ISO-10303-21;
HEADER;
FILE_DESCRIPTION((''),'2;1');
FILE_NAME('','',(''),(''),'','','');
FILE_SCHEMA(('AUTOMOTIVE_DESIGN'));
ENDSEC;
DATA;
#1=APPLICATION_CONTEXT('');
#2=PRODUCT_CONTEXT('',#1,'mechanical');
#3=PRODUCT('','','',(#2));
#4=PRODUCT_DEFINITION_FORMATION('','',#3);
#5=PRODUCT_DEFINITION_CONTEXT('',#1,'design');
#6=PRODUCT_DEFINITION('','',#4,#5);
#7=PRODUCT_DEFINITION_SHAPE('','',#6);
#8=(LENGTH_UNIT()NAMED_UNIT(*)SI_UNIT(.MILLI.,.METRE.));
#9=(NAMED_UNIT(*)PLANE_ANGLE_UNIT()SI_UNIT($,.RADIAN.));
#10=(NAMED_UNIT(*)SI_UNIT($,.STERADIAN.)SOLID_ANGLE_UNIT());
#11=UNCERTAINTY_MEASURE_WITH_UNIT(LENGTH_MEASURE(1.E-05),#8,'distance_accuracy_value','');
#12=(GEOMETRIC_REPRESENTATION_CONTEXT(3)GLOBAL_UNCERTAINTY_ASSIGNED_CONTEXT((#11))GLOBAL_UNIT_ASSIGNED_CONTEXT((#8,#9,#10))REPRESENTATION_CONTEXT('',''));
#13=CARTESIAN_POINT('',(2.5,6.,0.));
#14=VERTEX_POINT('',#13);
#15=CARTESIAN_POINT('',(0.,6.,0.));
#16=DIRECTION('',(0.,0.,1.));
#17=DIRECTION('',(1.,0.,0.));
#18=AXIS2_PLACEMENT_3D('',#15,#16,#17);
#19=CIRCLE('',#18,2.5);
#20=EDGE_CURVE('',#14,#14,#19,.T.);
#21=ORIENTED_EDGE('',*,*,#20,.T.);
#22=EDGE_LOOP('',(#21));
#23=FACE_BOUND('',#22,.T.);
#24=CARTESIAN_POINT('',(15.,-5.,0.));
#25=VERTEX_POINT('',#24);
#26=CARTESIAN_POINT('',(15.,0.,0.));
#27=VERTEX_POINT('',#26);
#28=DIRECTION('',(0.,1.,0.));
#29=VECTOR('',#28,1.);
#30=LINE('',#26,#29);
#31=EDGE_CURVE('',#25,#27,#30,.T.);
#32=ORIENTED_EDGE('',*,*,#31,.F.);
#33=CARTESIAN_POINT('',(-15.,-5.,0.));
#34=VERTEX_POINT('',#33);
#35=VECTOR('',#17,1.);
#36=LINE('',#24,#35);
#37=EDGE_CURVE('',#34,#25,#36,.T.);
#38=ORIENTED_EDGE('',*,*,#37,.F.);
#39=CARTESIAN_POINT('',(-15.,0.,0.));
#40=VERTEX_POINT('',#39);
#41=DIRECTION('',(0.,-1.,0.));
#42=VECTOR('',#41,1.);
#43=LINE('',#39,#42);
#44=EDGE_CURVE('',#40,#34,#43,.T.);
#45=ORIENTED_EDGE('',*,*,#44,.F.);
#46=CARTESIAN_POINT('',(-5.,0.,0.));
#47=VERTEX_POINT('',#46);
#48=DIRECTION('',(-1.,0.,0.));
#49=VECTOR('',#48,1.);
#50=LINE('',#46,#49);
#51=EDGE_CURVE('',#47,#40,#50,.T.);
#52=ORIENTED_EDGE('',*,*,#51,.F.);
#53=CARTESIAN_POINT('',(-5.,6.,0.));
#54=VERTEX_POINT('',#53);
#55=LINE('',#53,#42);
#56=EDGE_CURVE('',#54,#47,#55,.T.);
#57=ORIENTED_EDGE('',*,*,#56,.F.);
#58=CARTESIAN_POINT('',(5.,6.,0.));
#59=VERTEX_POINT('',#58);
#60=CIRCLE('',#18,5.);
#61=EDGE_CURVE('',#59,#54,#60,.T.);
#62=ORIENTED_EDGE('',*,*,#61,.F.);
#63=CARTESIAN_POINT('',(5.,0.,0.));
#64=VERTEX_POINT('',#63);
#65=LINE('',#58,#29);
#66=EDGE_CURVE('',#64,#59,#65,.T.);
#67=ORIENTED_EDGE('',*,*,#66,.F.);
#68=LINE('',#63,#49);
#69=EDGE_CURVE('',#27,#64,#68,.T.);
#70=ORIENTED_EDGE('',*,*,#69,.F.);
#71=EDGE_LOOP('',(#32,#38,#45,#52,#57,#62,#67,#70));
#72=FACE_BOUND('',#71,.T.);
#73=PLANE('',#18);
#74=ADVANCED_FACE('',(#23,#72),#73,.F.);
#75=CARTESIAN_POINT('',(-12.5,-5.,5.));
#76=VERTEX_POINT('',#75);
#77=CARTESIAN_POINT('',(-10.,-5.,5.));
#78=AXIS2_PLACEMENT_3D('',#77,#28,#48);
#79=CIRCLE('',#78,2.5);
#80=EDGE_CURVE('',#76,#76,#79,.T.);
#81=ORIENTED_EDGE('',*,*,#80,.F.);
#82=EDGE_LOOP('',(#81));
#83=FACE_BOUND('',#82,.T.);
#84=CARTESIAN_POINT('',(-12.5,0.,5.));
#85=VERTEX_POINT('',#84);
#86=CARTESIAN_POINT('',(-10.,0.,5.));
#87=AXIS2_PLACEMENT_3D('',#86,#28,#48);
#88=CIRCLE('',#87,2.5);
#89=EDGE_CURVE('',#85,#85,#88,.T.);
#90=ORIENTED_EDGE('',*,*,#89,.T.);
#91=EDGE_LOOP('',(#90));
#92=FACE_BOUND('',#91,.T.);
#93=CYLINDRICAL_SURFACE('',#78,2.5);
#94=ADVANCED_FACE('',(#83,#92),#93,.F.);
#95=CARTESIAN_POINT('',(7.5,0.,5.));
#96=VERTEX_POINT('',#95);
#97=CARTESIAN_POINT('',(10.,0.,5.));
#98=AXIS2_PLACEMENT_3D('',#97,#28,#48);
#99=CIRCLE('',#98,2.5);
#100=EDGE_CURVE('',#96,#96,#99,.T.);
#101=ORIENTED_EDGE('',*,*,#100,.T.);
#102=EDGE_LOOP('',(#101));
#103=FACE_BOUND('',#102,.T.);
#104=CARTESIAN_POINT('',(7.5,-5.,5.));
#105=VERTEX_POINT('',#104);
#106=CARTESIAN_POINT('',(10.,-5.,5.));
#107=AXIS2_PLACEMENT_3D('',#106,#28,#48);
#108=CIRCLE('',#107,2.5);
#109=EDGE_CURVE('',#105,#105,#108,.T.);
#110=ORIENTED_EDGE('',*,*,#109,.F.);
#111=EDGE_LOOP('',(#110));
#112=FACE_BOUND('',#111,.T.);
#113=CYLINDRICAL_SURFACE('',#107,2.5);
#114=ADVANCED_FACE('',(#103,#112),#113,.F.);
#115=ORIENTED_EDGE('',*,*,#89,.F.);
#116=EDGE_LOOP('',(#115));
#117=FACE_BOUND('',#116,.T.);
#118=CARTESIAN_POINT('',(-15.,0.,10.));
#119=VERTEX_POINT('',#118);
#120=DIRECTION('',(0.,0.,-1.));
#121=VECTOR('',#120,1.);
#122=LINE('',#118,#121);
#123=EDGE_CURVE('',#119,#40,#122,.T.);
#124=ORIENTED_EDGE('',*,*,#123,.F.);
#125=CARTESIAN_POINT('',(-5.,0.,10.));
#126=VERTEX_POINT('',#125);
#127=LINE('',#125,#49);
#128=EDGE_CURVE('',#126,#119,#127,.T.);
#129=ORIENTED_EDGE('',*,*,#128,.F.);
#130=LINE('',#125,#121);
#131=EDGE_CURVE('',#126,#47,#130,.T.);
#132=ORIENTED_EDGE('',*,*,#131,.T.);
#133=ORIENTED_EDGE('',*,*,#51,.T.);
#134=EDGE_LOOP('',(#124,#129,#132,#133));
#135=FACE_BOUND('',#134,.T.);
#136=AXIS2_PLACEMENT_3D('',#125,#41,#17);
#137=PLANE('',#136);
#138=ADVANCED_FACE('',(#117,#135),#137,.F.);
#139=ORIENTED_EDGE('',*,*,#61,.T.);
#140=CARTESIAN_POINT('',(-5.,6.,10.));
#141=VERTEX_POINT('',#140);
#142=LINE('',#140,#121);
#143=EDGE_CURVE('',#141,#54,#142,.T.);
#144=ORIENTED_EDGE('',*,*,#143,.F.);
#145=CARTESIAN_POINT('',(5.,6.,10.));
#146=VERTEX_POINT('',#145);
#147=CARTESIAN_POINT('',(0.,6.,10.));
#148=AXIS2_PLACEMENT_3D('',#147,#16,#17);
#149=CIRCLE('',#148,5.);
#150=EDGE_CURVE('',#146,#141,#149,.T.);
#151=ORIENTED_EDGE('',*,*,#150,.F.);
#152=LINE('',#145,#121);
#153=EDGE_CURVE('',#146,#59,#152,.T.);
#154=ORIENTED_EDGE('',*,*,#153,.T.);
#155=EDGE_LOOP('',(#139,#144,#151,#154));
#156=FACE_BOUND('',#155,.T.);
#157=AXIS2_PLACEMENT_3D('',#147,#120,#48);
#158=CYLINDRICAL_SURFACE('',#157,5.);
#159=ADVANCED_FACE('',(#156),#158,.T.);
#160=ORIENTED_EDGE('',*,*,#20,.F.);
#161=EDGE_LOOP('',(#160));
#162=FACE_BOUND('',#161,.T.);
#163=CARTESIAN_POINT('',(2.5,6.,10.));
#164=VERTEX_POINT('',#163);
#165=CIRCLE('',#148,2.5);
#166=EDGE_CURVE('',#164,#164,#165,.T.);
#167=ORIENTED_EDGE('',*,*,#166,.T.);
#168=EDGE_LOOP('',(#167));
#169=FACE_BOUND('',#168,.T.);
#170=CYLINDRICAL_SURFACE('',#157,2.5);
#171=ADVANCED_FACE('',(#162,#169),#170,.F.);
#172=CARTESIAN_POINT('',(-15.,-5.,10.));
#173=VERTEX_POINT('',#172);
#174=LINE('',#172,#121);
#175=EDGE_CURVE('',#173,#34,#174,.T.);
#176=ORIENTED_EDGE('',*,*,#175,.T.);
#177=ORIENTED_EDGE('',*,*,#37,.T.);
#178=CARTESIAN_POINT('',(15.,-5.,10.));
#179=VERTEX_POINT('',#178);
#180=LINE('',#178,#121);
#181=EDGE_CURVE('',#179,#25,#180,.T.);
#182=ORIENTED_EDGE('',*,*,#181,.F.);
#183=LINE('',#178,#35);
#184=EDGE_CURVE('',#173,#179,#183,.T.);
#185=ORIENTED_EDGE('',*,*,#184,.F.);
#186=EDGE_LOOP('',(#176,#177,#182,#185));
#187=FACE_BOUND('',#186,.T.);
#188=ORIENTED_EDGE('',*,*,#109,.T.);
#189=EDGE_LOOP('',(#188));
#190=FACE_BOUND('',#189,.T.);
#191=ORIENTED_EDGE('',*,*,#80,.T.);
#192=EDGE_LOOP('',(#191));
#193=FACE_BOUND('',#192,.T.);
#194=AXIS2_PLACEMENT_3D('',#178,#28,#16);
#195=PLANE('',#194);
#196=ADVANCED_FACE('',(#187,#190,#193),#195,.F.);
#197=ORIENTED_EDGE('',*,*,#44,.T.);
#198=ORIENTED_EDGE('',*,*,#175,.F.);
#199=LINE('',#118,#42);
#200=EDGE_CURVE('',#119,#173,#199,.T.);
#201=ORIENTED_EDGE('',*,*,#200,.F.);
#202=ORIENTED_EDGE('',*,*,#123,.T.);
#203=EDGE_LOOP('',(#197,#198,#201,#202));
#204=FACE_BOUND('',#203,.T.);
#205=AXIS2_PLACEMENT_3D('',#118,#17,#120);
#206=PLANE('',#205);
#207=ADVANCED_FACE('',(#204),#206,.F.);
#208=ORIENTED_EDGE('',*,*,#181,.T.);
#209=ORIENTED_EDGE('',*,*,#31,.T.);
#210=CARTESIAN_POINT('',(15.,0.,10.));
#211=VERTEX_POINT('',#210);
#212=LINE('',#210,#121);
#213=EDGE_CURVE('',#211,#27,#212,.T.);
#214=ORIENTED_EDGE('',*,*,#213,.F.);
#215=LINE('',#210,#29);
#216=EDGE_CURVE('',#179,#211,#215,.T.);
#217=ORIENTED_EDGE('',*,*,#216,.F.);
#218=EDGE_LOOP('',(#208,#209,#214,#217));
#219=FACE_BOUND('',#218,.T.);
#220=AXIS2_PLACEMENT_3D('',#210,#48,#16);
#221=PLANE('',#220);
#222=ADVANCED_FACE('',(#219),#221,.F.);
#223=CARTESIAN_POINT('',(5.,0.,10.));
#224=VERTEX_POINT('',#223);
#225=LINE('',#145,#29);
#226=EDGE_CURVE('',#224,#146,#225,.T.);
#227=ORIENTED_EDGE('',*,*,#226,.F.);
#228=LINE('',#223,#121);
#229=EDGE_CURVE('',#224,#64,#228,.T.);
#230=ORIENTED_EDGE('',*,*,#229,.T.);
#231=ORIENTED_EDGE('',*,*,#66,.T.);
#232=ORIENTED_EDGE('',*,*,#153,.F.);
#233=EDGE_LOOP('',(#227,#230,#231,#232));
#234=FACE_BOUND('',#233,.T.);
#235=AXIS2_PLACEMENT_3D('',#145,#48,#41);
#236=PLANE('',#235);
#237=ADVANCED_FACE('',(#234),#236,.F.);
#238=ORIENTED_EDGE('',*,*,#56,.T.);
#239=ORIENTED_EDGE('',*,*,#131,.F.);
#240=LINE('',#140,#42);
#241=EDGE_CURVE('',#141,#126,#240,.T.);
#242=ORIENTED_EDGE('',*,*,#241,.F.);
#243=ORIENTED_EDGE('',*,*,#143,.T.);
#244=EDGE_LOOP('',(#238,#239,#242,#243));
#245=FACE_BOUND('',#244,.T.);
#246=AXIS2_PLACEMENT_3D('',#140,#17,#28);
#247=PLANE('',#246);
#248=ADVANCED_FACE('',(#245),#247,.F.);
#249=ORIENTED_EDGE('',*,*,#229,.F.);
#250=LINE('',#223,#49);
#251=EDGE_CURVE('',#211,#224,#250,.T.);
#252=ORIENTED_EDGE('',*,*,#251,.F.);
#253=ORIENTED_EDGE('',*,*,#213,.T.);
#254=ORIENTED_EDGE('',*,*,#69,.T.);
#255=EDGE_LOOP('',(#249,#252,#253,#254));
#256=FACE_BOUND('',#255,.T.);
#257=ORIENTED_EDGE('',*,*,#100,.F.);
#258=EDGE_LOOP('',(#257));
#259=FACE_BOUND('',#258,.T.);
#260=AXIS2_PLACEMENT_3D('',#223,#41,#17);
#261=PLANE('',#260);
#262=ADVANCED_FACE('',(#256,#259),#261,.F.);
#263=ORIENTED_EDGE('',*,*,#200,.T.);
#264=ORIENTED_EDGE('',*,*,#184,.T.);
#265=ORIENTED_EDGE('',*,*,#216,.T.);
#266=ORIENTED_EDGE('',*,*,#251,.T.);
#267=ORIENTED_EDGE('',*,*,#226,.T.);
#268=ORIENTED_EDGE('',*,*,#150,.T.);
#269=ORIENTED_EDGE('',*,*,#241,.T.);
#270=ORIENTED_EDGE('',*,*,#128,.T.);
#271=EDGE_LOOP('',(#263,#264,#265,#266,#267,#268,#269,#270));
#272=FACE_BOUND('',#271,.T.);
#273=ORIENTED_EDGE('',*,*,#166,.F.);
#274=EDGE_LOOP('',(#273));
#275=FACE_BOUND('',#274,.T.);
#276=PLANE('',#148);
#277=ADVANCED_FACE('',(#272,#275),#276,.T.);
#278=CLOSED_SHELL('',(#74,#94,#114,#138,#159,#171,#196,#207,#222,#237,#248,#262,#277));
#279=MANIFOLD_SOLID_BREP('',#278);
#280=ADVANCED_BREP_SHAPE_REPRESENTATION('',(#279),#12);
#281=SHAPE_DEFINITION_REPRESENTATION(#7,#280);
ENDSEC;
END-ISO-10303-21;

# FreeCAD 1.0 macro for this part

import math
import FreeCAD as App
import Part
import Sketcher

doc = App.newDocument("Part")
body = doc.addObject("PartDesign::Body", "Body")

# Sketch on XY plane
sketch1 = body.newObject("Sketcher::SketchObject", "Sketch")
sketch1.AttachmentSupport = (doc.getObject("XY_Plane"), [""])
sketch1.MapMode = "FlatFace"
sketch1.addGeometry([
    Part.LineSegment(App.Vector(15, 0, 0), App.Vector(5, 0, 0)),  # 0
    Part.LineSegment(App.Vector(5, 0, 0), App.Vector(5, 6, 0)),  # 1
    Part.ArcOfCircle(Part.Circle(App.Vector(0, 6, 0), App.Vector(0, 0, 1), 5), math.radians(0), math.radians(180)),  # 2
    Part.LineSegment(App.Vector(-5, 6, 0), App.Vector(-5, 0, 0)),  # 3
    Part.LineSegment(App.Vector(-5, 0, 0), App.Vector(-15, 0, 0)),  # 4
    Part.LineSegment(App.Vector(-15, 0, 0), App.Vector(-15, -5, 0)),  # 5
    Part.LineSegment(App.Vector(-15, -5, 0), App.Vector(15, -5, 0)),  # 6
    Part.LineSegment(App.Vector(15, -5, 0), App.Vector(15, 0, 0)),  # 7
    Part.Circle(App.Vector(0, 6, 0), App.Vector(0, 0, 1), 2.5),  # 8
], False)
sketch1.addConstraint([
    Sketcher.Constraint("Coincident", 0, 2, 1, 1),
    Sketcher.Constraint("Tangent", 1, 2, 2, 1),
    Sketcher.Constraint("Tangent", 2, 2, 3, 1),
    Sketcher.Constraint("Coincident", 3, 2, 4, 1),
    Sketcher.Constraint("Coincident", 4, 2, 5, 1),
    Sketcher.Constraint("Coincident", 5, 2, 6, 1),
    Sketcher.Constraint("Coincident", 6, 2, 7, 1),
    Sketcher.Constraint("Coincident", 7, 2, 0, 1),
    Sketcher.Constraint("Horizontal", 0),
    Sketcher.Constraint("Vertical", 1),
    Sketcher.Constraint("Vertical", 3),
    Sketcher.Constraint("Horizontal", 4),
    Sketcher.Constraint("Vertical", 5),
    Sketcher.Constraint("Horizontal", 6),
    Sketcher.Constraint("Vertical", 7),
    Sketcher.Constraint("Coincident", 8, 3, 2, 3),
    Sketcher.Constraint("Symmetric", 0, 2, 3, 2, -1, 1),
    Sketcher.Constraint("Symmetric", 4, 2, 7, 2, -2),
    Sketcher.Constraint("Diameter", 8, 5.0),
    Sketcher.Constraint("Radius", 2, 5.0),
    Sketcher.Constraint("DistanceX", 0, 2, 0, 1, 10.0),
    Sketcher.Constraint("DistanceY", 1, 1, 1, 2, 6.0),
    Sketcher.Constraint("DistanceY", 5, 2, 5, 1, 5.0),
])
pad1 = body.newObject("PartDesign::Pad", "Pad")
pad1.Profile = sketch1
pad1.Length = 10

# Sketch on XZ plane
sketch2 = body.newObject("Sketcher::SketchObject", "Sketch001")
sketch2.AttachmentSupport = (doc.getObject("XZ_Plane"), [""])
sketch2.MapMode = "FlatFace"
sketch2.addGeometry(Part.Circle(App.Vector(-10, 5, 0), App.Vector(0, 0, 1), 2.5), False)
sketch2.addConstraint([
    Sketcher.Constraint("Diameter", 0, 5.0),
    Sketcher.Constraint("DistanceX", 0, 3, -1, 1, 10.0),
    Sketcher.Constraint("DistanceY", -1, 1, 0, 3, 5.0),
])
pocket1 = body.newObject("PartDesign::Pocket", "Pocket")
pocket1.Profile = sketch2
pocket1.Length = 5
pocket1.Reversed = True

# Sketch on XZ plane
sketch3 = body.newObject("Sketcher::SketchObject", "Sketch002")
sketch3.AttachmentSupport = (doc.getObject("XZ_Plane"), [""])
sketch3.MapMode = "FlatFace"
sketch3.addGeometry(Part.Circle(App.Vector(10, 5, 0), App.Vector(0, 0, 1), 2.5), False)
sketch3.addConstraint([
    Sketcher.Constraint("Diameter", 0, 5.0),
    Sketcher.Constraint("DistanceX", -1, 1, 0, 3, 10.0),
    Sketcher.Constraint("DistanceY", -1, 1, 0, 3, 5.0),
])
pocket2 = body.newObject("PartDesign::Pocket", "Pocket001")
pocket2.Profile = sketch3
pocket2.Length = 5
pocket2.Reversed = True

doc.recompute()
